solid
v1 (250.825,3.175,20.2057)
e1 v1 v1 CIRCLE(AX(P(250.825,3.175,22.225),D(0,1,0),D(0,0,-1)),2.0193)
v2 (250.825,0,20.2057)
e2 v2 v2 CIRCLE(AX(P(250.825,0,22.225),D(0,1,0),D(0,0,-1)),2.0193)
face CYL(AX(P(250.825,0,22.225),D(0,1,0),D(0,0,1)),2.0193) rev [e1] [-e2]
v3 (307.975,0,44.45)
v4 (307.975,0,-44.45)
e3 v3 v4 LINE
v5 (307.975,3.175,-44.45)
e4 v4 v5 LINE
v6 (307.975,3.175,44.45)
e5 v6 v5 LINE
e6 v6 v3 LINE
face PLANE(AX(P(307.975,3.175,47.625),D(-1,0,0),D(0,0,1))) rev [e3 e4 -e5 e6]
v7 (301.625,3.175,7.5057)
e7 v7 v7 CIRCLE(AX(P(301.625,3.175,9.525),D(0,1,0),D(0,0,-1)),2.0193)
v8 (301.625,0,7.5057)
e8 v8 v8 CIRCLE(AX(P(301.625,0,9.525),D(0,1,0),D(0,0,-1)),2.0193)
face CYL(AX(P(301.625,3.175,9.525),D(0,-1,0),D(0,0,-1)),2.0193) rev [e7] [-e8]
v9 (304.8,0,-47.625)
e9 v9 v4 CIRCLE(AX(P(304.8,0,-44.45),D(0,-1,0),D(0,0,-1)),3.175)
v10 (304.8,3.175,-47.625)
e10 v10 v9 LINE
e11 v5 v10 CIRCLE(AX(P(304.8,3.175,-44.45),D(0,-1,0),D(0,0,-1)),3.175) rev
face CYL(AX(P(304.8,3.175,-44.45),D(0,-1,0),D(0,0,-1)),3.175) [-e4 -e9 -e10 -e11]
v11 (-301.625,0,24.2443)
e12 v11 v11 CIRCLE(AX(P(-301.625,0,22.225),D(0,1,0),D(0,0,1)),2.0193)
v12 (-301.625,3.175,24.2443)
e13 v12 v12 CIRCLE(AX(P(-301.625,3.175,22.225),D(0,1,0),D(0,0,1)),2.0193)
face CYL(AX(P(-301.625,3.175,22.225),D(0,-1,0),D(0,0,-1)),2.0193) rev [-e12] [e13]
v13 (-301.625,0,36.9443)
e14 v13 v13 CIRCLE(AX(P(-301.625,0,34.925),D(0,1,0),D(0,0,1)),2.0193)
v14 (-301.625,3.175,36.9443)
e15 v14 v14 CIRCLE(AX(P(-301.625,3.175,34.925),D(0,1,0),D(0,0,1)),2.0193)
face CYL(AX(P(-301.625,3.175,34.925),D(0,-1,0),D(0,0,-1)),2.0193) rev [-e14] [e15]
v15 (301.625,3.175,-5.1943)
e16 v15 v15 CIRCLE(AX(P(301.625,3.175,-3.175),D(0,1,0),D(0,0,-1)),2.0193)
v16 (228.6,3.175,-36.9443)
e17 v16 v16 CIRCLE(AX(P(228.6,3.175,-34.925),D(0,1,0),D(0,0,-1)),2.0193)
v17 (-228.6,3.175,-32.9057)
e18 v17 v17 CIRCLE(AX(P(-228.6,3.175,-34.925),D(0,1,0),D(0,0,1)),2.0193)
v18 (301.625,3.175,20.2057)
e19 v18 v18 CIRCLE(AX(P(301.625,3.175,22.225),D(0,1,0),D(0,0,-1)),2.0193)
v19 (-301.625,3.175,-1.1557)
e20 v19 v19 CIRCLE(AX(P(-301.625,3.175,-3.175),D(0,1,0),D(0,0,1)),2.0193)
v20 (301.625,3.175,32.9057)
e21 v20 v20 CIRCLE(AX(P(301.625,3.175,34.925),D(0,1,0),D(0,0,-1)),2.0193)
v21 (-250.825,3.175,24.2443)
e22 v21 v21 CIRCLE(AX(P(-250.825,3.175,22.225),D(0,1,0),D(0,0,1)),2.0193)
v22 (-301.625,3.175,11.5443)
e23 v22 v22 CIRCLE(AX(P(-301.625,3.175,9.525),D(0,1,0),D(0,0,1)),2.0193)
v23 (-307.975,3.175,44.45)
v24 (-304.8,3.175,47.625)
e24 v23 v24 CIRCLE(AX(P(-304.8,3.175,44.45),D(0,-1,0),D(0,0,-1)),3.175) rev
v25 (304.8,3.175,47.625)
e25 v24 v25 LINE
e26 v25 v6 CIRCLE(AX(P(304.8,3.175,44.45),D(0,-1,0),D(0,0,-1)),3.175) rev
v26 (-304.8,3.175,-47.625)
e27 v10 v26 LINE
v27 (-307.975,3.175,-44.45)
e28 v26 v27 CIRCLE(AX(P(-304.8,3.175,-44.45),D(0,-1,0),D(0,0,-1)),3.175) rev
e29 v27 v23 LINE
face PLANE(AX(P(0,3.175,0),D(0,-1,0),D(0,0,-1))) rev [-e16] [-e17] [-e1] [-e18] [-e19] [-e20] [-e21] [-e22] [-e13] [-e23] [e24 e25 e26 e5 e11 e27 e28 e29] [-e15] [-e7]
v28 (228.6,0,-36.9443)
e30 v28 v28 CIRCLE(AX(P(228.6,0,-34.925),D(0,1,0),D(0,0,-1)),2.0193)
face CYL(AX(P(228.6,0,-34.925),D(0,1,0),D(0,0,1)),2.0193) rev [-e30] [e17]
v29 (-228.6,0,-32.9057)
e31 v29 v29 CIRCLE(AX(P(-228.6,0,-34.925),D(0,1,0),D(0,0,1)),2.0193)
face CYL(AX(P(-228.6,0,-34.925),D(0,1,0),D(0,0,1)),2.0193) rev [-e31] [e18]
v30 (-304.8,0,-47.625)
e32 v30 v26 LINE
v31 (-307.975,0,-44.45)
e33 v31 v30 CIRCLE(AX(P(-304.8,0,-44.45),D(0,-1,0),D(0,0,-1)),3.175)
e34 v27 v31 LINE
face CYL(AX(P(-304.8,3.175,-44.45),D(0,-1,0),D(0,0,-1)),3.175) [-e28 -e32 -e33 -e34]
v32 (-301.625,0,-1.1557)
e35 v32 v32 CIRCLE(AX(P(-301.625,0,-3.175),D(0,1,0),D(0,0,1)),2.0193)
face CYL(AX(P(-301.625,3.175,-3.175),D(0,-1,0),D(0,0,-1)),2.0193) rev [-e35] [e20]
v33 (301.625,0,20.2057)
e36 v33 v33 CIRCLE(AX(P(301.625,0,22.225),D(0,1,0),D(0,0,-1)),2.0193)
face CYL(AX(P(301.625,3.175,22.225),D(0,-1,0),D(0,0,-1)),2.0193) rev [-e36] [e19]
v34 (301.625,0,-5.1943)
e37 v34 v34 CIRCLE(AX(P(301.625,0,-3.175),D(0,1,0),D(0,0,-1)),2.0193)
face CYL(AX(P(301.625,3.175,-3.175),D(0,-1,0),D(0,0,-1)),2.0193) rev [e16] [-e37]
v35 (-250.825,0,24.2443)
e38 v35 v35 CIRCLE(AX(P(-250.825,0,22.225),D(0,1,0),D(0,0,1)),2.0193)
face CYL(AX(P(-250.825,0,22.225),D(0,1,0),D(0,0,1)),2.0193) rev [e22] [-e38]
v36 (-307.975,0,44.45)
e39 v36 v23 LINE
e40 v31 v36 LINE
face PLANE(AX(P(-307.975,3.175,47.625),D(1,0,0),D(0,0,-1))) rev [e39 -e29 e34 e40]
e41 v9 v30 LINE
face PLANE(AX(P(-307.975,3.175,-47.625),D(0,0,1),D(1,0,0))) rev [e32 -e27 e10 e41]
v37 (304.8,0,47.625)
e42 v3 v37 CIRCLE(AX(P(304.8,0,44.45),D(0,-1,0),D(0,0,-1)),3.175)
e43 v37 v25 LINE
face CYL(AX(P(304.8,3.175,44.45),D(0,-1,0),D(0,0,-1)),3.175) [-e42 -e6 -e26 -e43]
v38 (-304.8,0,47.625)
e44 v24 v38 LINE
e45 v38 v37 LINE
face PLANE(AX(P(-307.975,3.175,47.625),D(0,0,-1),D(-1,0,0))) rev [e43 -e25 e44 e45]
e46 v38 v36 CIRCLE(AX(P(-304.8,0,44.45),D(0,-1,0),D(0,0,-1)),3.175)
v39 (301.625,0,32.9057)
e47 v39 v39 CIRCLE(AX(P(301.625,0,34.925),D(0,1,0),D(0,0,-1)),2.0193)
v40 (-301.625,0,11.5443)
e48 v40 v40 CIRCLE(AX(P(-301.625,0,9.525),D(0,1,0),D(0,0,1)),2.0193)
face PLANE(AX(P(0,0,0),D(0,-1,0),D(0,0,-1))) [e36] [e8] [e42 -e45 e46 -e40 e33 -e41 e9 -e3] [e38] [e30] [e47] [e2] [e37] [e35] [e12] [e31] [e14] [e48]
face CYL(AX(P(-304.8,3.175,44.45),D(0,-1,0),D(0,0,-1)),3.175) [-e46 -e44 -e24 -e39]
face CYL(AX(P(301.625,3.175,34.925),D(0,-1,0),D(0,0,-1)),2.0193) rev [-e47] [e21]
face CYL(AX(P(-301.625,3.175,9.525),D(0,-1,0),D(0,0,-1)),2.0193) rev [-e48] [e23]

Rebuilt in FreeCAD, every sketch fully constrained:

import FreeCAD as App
import Part
import Sketcher
from FreeCAD import Vector
Q = App.Units.Quantity


def edges_at(feature, points):
    """Names of the edges that pass closest to the given points."""
    edges = feature.Shape.Edges
    near = lambda p: min(range(len(edges)), key=lambda i: edges[i].distToShape(Part.Vertex(*p))[0])
    return sorted({f"Edge{near(p) + 1}" for p in points})

doc = App.newDocument("Part")
body = doc.addObject("PartDesign::Body", "Body")

sketch1 = body.newObject("Sketcher::SketchObject", "Sketch")
sketch1.AttachmentSupport = (doc.getObject("XZ_Plane"), [""])
sketch1.MapMode = "FlatFace"
sketch1.addGeometry(Part.LineSegment(Vector(-308, -47.6, 0), Vector(-308, 47.6, 0)), False)
sketch1.addGeometry(Part.LineSegment(Vector(-308, 47.6, 0), Vector(308, 47.6, 0)), False)
sketch1.addGeometry(Part.LineSegment(Vector(308, 47.6, 0), Vector(308, -47.6, 0)), False)
sketch1.addGeometry(Part.LineSegment(Vector(308, -47.6, 0), Vector(-308, -47.6, 0)), False)
sketch1.addGeometry(Part.Circle(Vector(-301.6, 34.9, 0), Vector(0, 0, 1), 2), False)
sketch1.addGeometry(Part.Circle(Vector(-301.6, 22.2, 0), Vector(0, 0, 1), 2), False)
sketch1.addGeometry(Part.Circle(Vector(301.6, 34.9, 0), Vector(0, 0, 1), 2), False)
sketch1.addGeometry(Part.Circle(Vector(301.6, 22.2, 0), Vector(0, 0, 1), 2), False)
sketch1.addGeometry(Part.Circle(Vector(-301.6, 9.5, 0), Vector(0, 0, 1), 2), False)
sketch1.addGeometry(Part.Circle(Vector(-301.6, -3.2, 0), Vector(0, 0, 1), 2), False)
sketch1.addGeometry(Part.Circle(Vector(301.6, 9.5, 0), Vector(0, 0, 1), 2), False)
sketch1.addGeometry(Part.Circle(Vector(301.6, -3.2, 0), Vector(0, 0, 1), 2), False)
sketch1.addConstraint(Sketcher.Constraint("Coincident", 0, 2, 1, 1))
sketch1.addConstraint(Sketcher.Constraint("Coincident", 1, 2, 2, 1))
sketch1.addConstraint(Sketcher.Constraint("Coincident", 2, 2, 3, 1))
sketch1.addConstraint(Sketcher.Constraint("Coincident", 3, 2, 0, 1))
sketch1.addConstraint(Sketcher.Constraint("Vertical", 0))
sketch1.addConstraint(Sketcher.Constraint("Horizontal", 1))
sketch1.addConstraint(Sketcher.Constraint("Vertical", 2))
sketch1.addConstraint(Sketcher.Constraint("Horizontal", 3))
sketch1.addConstraint(Sketcher.Constraint("Equal", 4, 5))
sketch1.addConstraint(Sketcher.Constraint("Equal", 5, 6))
sketch1.addConstraint(Sketcher.Constraint("Equal", 6, 7))
sketch1.addConstraint(Sketcher.Constraint("Equal", 7, 8))
sketch1.addConstraint(Sketcher.Constraint("Equal", 8, 9))
sketch1.addConstraint(Sketcher.Constraint("Equal", 9, 10))
sketch1.addConstraint(Sketcher.Constraint("Equal", 10, 11))
sketch1.addConstraint(Sketcher.Constraint("Symmetric", 0, 2, 2, 2, -1, 1))
sketch1.addConstraint(Sketcher.Constraint("Symmetric", 4, 3, 6, 3, -2))
sketch1.addConstraint(Sketcher.Constraint("Symmetric", 5, 3, 7, 3, -2))
sketch1.addConstraint(Sketcher.Constraint("Symmetric", 8, 3, 10, 3, -2))
sketch1.addConstraint(Sketcher.Constraint("Symmetric", 9, 3, 11, 3, -2))
sketch1.addConstraint(Sketcher.Constraint("Vertical", 4, 3, 5, 3))
sketch1.addConstraint(Sketcher.Constraint("Vertical", 5, 3, 8, 3))
sketch1.addConstraint(Sketcher.Constraint("Vertical", 8, 3, 9, 3))
sketch1.addConstraint(Sketcher.Constraint("Diameter", 4, Q("0.159 in")))
sketch1.addConstraint(Sketcher.Constraint("DistanceY", 8, 3, 4, 3, Q("1 in")))
sketch1.addConstraint(Sketcher.Constraint("DistanceY", 9, 3, 5, 3, Q("1 in")))
sketch1.addConstraint(Sketcher.Constraint("DistanceY", 5, 3, 0, 2, Q("1 in")))
sketch1.addConstraint(Sketcher.Constraint("DistanceX", 0, 2, 6, 3, Q("24 in")))
sketch1.addConstraint(Sketcher.Constraint("DistanceX", 1, 1, 1, 2, Q("24.25 in")))
sketch1.addConstraint(Sketcher.Constraint("DistanceY", 0, 1, 0, 2, Q("3.75 in")))
sketch1.addConstraint(Sketcher.Constraint("DistanceY", 5, 3, 4, 3, Q("0.5 in")))
pad1 = body.newObject("PartDesign::Pad", "Pad")
pad1.Profile = sketch1
pad1.Length = Q("0.125 in")
pad1.Reversed = True
doc.recompute()

fillet = body.newObject("PartDesign::Fillet", "Fillet")
fillet.Base = (pad1, edges_at(pad1, [
    (307.975, 1.587, 47.625),
    (-307.975, 1.587, 47.625),
    (-307.975, 1.587, -47.625),
    (307.975, 1.587, -47.625),
]))
fillet.Radius = Q("0.125 in")

sketch2 = body.newObject("Sketcher::SketchObject", "Sketch001")
sketch2.AttachmentSupport = (doc.getObject("XZ_Plane"), [""])
sketch2.MapMode = "FlatFace"
sketch2.AttachmentOffset = App.Placement(Vector(0, 0, -0.125 * 25.4), App.Rotation())
sketch2.addGeometry(Part.Circle(Vector(-228.6, -34.9, 0), Vector(0, 0, 1), 2), False)
sketch2.addGeometry(Part.Circle(Vector(-250.8, 22.2, 0), Vector(0, 0, 1), 2), False)
sketch2.addGeometry(Part.Circle(Vector(250.8, 22.2, 0), Vector(0, 0, 1), 2), False)
sketch2.addGeometry(Part.Circle(Vector(228.6, -34.9, 0), Vector(0, 0, 1), 2), False)
sketch2.addConstraint(Sketcher.Constraint("Equal", 0, 1))
sketch2.addConstraint(Sketcher.Constraint("Equal", 1, 2))
sketch2.addConstraint(Sketcher.Constraint("Equal", 2, 3))
sketch2.addConstraint(Sketcher.Constraint("Symmetric", 1, 3, 2, 3, -2))
sketch2.addConstraint(Sketcher.Constraint("Symmetric", 0, 3, 3, 3, -2))
sketch2.addConstraint(Sketcher.Constraint("Diameter", 0, Q("0.159 in")))
sketch2.addConstraint(Sketcher.Constraint("DistanceX", 0, 3, -1, 1, Q("9 in")))
sketch2.addConstraint(Sketcher.Constraint("DistanceY", 0, 3, 1, 3, Q("2.25 in")))
sketch2.addConstraint(Sketcher.Constraint("DistanceX", 1, 3, 2, 3, Q("19.75 in")))
sketch2.addConstraint(Sketcher.Constraint("DistanceY", 0, 3, -1, 1, Q("1.375 in")))
pocket1 = body.newObject("PartDesign::Pocket", "Pocket")
pocket1.Profile = sketch2
pocket1.Type = "ThroughAll"
pocket1.Reversed = True

doc.recompute()
